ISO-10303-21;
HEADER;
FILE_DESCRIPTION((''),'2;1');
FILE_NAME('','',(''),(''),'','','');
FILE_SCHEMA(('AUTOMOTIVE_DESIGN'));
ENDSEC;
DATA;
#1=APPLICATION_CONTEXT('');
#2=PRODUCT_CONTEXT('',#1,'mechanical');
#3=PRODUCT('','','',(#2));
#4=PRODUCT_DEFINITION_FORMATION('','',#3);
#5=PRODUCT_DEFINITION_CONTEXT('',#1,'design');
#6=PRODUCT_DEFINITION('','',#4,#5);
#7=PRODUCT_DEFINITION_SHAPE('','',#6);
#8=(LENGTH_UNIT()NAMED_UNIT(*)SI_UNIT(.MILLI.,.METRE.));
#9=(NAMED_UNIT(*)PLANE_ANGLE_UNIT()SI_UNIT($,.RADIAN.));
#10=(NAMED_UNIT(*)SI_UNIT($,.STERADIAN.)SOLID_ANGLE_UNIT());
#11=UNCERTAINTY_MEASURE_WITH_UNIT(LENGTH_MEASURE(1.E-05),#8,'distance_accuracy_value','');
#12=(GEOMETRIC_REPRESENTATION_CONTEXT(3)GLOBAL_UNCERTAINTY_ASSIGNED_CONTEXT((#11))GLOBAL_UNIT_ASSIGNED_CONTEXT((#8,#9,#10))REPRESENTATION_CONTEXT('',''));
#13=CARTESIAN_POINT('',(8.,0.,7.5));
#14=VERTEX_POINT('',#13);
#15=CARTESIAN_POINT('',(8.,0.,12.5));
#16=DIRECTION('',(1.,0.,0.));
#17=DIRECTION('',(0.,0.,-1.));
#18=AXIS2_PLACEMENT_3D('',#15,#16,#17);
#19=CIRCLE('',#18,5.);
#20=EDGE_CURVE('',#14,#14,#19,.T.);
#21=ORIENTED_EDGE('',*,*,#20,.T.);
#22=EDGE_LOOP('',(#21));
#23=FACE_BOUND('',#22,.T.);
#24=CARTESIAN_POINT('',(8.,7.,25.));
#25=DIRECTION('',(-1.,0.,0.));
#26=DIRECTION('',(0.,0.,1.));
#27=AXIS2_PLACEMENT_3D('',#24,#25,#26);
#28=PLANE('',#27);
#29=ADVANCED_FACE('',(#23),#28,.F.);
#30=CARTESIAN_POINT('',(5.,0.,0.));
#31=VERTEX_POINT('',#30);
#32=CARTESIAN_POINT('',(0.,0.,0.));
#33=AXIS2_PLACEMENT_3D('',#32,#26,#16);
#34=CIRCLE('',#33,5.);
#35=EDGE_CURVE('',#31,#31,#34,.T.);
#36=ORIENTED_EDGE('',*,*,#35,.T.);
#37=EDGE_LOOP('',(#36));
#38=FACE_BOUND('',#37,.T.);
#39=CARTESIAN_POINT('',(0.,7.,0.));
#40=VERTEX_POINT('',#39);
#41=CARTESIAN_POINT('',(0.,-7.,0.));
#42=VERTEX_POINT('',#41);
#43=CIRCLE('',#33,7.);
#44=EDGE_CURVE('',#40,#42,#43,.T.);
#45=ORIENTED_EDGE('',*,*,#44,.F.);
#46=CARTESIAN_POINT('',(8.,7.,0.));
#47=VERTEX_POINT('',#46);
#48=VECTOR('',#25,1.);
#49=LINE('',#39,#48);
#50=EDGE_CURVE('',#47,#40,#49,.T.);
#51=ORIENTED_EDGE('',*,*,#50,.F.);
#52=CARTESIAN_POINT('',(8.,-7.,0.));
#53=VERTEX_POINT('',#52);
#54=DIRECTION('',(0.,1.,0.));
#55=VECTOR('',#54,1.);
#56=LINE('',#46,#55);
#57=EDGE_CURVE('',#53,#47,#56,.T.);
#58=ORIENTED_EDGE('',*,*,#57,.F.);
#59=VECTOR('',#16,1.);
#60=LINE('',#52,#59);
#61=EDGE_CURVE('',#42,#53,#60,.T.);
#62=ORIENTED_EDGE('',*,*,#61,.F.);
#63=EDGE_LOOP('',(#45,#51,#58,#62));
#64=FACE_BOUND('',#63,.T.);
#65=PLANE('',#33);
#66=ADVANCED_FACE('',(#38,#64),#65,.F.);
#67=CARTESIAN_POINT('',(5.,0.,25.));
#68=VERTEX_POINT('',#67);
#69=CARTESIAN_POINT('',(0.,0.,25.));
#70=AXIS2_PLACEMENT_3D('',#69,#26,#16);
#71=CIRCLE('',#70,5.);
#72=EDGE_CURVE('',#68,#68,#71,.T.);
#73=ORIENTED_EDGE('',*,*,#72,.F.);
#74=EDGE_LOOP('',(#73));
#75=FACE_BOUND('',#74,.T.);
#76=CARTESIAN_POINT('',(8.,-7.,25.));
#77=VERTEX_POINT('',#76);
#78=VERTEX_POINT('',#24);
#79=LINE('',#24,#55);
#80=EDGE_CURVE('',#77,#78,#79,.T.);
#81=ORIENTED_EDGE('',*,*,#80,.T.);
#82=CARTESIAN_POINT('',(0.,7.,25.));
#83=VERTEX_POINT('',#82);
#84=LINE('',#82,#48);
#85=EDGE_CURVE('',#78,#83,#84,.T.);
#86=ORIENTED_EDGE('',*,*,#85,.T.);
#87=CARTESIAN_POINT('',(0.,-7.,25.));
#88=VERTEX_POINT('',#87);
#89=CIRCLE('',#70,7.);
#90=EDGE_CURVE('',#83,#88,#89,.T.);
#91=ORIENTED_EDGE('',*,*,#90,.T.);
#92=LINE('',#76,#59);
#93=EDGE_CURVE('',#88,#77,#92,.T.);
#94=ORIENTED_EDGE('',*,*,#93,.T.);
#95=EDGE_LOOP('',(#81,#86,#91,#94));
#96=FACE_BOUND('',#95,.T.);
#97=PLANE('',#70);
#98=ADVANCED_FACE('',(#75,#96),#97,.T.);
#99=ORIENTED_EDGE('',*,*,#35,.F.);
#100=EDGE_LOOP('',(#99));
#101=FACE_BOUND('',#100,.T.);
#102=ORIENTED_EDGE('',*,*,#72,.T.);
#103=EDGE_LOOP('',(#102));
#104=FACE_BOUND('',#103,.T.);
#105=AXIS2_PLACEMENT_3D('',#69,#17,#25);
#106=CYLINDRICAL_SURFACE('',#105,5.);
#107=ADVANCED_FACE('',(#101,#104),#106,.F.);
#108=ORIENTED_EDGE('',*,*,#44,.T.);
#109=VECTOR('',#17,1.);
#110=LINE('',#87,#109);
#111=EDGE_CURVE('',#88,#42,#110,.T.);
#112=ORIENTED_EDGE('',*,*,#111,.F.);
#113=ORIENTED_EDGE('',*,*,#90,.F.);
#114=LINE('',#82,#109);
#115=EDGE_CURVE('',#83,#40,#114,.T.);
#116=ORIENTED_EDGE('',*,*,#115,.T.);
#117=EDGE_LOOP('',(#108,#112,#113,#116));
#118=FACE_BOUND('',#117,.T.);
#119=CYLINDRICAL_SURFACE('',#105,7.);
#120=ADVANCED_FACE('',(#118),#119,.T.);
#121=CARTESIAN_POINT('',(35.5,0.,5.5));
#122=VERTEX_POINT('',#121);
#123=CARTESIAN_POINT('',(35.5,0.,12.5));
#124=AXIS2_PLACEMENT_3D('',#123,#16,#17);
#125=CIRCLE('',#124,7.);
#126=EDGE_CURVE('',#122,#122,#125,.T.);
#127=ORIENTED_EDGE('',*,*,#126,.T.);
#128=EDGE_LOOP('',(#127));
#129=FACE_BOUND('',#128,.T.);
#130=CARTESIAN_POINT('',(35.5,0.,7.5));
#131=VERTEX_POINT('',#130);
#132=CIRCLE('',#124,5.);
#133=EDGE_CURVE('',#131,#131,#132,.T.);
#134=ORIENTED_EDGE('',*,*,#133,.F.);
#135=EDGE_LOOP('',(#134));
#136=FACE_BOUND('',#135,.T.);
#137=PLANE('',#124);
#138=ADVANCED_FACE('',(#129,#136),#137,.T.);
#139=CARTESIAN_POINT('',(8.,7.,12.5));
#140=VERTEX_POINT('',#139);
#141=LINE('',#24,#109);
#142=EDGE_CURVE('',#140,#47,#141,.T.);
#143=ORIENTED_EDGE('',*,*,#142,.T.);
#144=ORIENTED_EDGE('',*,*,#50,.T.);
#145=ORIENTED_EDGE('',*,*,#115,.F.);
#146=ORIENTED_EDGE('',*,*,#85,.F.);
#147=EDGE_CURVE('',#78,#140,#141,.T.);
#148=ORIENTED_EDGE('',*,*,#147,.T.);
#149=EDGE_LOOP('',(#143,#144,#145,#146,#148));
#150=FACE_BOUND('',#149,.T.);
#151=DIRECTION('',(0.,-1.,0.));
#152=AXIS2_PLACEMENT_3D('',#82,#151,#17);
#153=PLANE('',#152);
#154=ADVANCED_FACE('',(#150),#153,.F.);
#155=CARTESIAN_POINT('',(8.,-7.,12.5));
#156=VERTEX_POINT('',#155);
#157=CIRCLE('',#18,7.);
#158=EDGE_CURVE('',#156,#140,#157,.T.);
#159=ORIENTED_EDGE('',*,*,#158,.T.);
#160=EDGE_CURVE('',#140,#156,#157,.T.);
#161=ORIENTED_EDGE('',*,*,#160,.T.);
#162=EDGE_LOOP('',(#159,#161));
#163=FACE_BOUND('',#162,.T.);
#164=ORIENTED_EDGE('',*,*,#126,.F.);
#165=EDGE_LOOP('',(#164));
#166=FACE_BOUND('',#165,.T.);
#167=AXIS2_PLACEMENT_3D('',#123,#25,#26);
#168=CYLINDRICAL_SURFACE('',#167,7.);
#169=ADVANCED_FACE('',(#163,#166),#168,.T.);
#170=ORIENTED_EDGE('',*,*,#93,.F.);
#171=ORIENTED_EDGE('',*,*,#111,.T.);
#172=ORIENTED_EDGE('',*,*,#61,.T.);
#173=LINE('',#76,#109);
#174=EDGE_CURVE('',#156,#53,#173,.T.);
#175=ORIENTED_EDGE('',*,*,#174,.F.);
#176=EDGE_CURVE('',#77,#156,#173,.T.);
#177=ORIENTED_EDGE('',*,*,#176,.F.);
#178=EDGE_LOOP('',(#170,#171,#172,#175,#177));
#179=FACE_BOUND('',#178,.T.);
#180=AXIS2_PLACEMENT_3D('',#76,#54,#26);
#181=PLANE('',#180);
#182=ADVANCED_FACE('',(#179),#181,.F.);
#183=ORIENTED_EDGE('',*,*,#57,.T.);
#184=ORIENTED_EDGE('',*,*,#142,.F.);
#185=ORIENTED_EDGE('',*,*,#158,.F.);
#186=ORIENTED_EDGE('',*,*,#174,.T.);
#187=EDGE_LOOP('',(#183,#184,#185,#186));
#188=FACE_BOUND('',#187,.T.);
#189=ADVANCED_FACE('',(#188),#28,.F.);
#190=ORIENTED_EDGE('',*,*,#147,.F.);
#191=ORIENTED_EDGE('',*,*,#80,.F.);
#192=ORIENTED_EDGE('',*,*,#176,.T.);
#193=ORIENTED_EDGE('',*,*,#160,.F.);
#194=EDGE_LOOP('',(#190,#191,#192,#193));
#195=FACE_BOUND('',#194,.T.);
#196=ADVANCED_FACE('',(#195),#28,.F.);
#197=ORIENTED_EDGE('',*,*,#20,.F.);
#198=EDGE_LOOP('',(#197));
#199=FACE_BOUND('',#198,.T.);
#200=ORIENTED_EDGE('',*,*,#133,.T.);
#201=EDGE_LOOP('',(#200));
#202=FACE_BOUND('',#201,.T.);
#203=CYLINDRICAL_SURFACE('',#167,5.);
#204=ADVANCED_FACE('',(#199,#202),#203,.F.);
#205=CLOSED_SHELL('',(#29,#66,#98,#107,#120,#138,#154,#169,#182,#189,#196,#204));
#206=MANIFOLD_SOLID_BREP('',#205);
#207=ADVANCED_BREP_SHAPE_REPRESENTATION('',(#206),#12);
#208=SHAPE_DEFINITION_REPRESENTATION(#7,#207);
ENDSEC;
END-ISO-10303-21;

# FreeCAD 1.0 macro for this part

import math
import FreeCAD as App
import Part
import Sketcher
from FreeCAD import Vector

doc = App.newDocument("Part")
body = doc.addObject("PartDesign::Body", "Body")

sketch1 = body.newObject("Sketcher::SketchObject", "Sketch")
sketch1.AttachmentSupport = (doc.getObject("XY_Plane"), [""])
sketch1.MapMode = "FlatFace"
sketch1.addGeometry(Part.LineSegment(Vector(8, 7, 0), Vector(0, 7, 0)), False)
sketch1.addGeometry(Part.ArcOfCircle(Part.Circle(Vector(0, 0, 0), Vector(0, 0, 1), 7), math.radians(90), math.radians(270)), False)
sketch1.addGeometry(Part.LineSegment(Vector(0, -7, 0), Vector(8, -7, 0)), False)
sketch1.addGeometry(Part.LineSegment(Vector(8, -7, 0), Vector(8, 7, 0)), False)
sketch1.addGeometry(Part.Circle(Vector(0, 0, 0), Vector(0, 0, 1), 5), False)
sketch1.addConstraint(Sketcher.Constraint("Tangent", 0, 2, 1, 1))
sketch1.addConstraint(Sketcher.Constraint("Tangent", 1, 2, 2, 1))
sketch1.addConstraint(Sketcher.Constraint("Coincident", 2, 2, 3, 1))
sketch1.addConstraint(Sketcher.Constraint("Coincident", 3, 2, 0, 1))
sketch1.addConstraint(Sketcher.Constraint("Horizontal", 0))
sketch1.addConstraint(Sketcher.Constraint("Horizontal", 2))
sketch1.addConstraint(Sketcher.Constraint("Vertical", 3))
sketch1.addConstraint(Sketcher.Constraint("Coincident", 1, 3, -1, 1))
sketch1.addConstraint(Sketcher.Constraint("Coincident", 4, 3, -1, 1))
sketch1.addConstraint(Sketcher.Constraint("Diameter", 4, 10.0))
sketch1.addConstraint(Sketcher.Constraint("Radius", 1, 7.0))
sketch1.addConstraint(Sketcher.Constraint("DistanceX", 0, 2, 0, 1, 8.0))
pad1 = body.newObject("PartDesign::Pad", "Pad")
pad1.Profile = sketch1
pad1.Length = 25

sketch2 = body.newObject("Sketcher::SketchObject", "Sketch001")
sketch2.AttachmentSupport = (doc.getObject("YZ_Plane"), [""])
sketch2.MapMode = "FlatFace"
sketch2.AttachmentOffset = App.Placement(Vector(0, 0, 8), App.Rotation())
sketch2.addGeometry(Part.Circle(Vector(0, 12.5, 0), Vector(0, 0, 1), 7), False)
sketch2.addGeometry(Part.Circle(Vector(0, 12.5, 0), Vector(0, 0, 1), 5), False)
sketch2.addConstraint(Sketcher.Constraint("Coincident", 1, 3, 0, 3))
sketch2.addConstraint(Sketcher.Constraint("PointOnObject", 0, 3, -2))
sketch2.addConstraint(Sketcher.Constraint("Diameter", 0, 14.0))
sketch2.addConstraint(Sketcher.Constraint("Diameter", 1, 10.0))
sketch2.addConstraint(Sketcher.Constraint("DistanceY", -1, 1, 0, 3, 12.5))
pad2 = body.newObject("PartDesign::Pad", "Pad001")
pad2.Profile = sketch2
pad2.Length = 27.5

doc.recompute()
